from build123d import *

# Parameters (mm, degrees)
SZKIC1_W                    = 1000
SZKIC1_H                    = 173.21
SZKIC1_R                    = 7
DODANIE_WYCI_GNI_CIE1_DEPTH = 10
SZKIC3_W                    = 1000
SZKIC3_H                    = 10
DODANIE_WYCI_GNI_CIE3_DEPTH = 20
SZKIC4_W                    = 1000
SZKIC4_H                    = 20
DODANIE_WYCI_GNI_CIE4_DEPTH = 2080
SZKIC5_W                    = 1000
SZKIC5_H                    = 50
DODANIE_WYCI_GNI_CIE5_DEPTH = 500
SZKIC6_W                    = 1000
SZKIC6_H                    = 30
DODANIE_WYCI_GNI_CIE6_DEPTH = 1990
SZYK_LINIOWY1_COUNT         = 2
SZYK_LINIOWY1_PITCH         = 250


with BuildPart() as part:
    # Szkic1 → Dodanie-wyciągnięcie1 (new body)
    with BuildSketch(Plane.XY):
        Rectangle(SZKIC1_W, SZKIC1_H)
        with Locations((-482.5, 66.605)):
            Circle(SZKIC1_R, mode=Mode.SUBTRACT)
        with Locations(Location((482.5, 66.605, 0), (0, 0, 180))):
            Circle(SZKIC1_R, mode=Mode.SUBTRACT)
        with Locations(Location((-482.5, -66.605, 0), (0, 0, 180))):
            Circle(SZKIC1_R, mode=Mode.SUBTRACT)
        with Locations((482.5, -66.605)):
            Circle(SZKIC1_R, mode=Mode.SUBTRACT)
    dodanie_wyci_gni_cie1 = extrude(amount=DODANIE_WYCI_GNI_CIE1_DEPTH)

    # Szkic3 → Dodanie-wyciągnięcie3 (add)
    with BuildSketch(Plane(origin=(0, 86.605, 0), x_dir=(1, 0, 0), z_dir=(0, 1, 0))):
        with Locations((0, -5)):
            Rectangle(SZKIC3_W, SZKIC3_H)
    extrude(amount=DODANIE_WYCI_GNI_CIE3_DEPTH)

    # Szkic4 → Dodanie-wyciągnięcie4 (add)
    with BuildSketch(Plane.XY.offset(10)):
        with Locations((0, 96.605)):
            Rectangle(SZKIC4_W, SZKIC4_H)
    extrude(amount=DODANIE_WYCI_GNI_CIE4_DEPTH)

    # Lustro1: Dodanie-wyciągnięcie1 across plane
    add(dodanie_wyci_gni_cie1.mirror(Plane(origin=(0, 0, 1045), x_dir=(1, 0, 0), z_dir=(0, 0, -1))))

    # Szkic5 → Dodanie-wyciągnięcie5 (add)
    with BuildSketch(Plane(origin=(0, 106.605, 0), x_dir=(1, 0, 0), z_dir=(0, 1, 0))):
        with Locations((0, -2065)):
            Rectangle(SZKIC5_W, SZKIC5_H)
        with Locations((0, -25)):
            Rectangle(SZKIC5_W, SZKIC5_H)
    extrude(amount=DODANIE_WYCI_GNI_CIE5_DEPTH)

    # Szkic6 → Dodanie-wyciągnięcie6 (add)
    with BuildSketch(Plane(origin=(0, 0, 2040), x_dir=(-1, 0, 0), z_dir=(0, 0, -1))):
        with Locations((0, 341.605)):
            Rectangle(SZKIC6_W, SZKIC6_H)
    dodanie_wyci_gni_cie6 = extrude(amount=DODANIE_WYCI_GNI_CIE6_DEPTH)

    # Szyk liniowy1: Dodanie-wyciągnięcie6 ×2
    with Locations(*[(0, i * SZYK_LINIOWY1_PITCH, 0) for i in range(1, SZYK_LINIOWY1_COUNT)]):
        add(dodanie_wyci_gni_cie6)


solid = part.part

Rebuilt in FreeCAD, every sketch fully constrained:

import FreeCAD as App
import Part
import Sketcher
Q = App.Units.Quantity


def add_polygon(sketch, points):
    """Adds a closed chain of lines whose ends are joined by coincident constraints."""
    first, n = sketch.GeometryCount, len(points)
    for a, b in zip(points, points[1:] + points[:1]):
        sketch.addGeometry(Part.LineSegment(App.Vector(*a, 0), App.Vector(*b, 0)), False)
    for i in range(n):
        sketch.addConstraint(Sketcher.Constraint("Coincident", first + i, 2, first + (i + 1) % n, 1))

doc = App.newDocument("Part")
body = doc.addObject("PartDesign::Body", "Body")

sketch1 = doc.addObject("Sketcher::SketchObject", "Sketch")
body.addObject(sketch1)
sketch1.AttachmentSupport = (doc.XY_Plane, [""])
sketch1.MapMode = "FlatFace"
add_polygon(sketch1, [(-500, 87), (-500, -87), (500, -87), (500, 87)])
sketch1.addGeometry(Part.Circle(App.Vector(-482, -67, 0), App.Vector(0, 0, 1), 7), False)
sketch1.addGeometry(Part.Circle(App.Vector(482, -67, 0), App.Vector(0, 0, 1), 7), False)
sketch1.addGeometry(Part.Circle(App.Vector(-482, 67, 0), App.Vector(0, 0, 1), 7), False)
sketch1.addGeometry(Part.Circle(App.Vector(482, 67, 0), App.Vector(0, 0, 1), 7), False)
sketch1.addConstraint([
    Sketcher.Constraint("Vertical", 0),
    Sketcher.Constraint("Horizontal", 1),
    Sketcher.Constraint("Vertical", 2),
    Sketcher.Constraint("Horizontal", 3),
    Sketcher.Constraint("Equal", 4, 5),
    Sketcher.Constraint("Equal", 5, 6),
    Sketcher.Constraint("Equal", 6, 7),
    Sketcher.Constraint("Symmetric", 5, 3, 6, 3, -1, 1),
    Sketcher.Constraint("Symmetric", 4, 3, 7, 3, -1, 1),
    Sketcher.Constraint("Symmetric", 0, 2, 2, 2, -1, 1),
    Sketcher.Constraint("Symmetric", 4, 3, 5, 3, -2),
    Sketcher.Constraint("Diameter", 4, Q("14 mm")),
    Sketcher.Constraint("DistanceX", 1, 1, 1, 2, Q("1000 mm")),
    Sketcher.Constraint("DistanceX", 4, 3, 5, 3, Q("965 mm")),
    Sketcher.Constraint("DistanceY", 0, 2, 4, 3, Q("20 mm")),
    Sketcher.Constraint("DistanceY", 0, 2, 0, 1, Q("173.21 mm")),
])
pad1 = doc.addObject("PartDesign::Pad", "Pad")
body.addObject(pad1)
pad1.Profile = sketch1
pad1.Length = 10

sketch2 = doc.addObject("Sketcher::SketchObject", "Sketch001")
body.addObject(sketch2)
sketch2.AttachmentSupport = (doc.XZ_Plane, [""])
sketch2.MapMode = "FlatFace"
sketch2.AttachmentOffset = App.Placement(App.Vector(0, 0, -86.605), App.Rotation())
add_polygon(sketch2, [(-500, 0), (-500, 10), (500, 10), (500, 0)])
sketch2.addConstraint([
    Sketcher.Constraint("Vertical", 0),
    Sketcher.Constraint("Horizontal", 1),
    Sketcher.Constraint("Vertical", 2),
    Sketcher.Constraint("Horizontal", 3),
    Sketcher.Constraint("Symmetric", 2, 2, 3, 2, -1, 1),
    Sketcher.Constraint("DistanceX", 1, 1, 1, 2, Q("1000 mm")),
    Sketcher.Constraint("DistanceY", 0, 1, 0, 2, Q("10 mm")),
])
pad2 = doc.addObject("PartDesign::Pad", "Pad001")
body.addObject(pad2)
pad2.Profile = sketch2
pad2.Length = 20
pad2.Reversed = True

sketch3 = doc.addObject("Sketcher::SketchObject", "Sketch002")
body.addObject(sketch3)
sketch3.AttachmentSupport = (doc.XY_Plane, [""])
sketch3.MapMode = "FlatFace"
sketch3.AttachmentOffset = App.Placement(App.Vector(0, 0, 10), App.Rotation())
add_polygon(sketch3, [(-500, 107), (-500, 87), (500, 87), (500, 107)])
sketch3.addConstraint([
    Sketcher.Constraint("Vertical", 0),
    Sketcher.Constraint("Horizontal", 1),
    Sketcher.Constraint("Vertical", 2),
    Sketcher.Constraint("Horizontal", 3),
    Sketcher.Constraint("DistanceX", 1, 1, 1, 2, Q("1000 mm")),
    Sketcher.Constraint("DistanceY", 0, 2, 0, 1, Q("20 mm")),
    Sketcher.Constraint("DistanceX", 0, 2, -1, 1, Q("500 mm")),
    Sketcher.Constraint("DistanceY", -1, 1, 0, 2, Q("86.605 mm")),
])
pad3 = doc.addObject("PartDesign::Pad", "Pad002")
body.addObject(pad3)
pad3.Profile = sketch3
pad3.Length = 2080
doc.recompute()

datumplane = doc.addObject("PartDesign::Plane", "DatumPlane")
body.addObject(datumplane)
datumplane.AttachmentSupport = (doc.XY_Plane, [""])
datumplane.MapMode = "FlatFace"
datumplane.AttachmentOffset = App.Placement(App.Vector(0, 0, 1045), App.Rotation())
mirrored = doc.addObject("PartDesign::Mirrored", "Mirrored")
body.addObject(mirrored)
mirrored.Originals = [pad1]
mirrored.MirrorPlane = (datumplane, [""])
body.Tip = mirrored

sketch4 = doc.addObject("Sketcher::SketchObject", "Sketch003")
body.addObject(sketch4)
sketch4.AttachmentSupport = (doc.XZ_Plane, [""])
sketch4.MapMode = "FlatFace"
sketch4.AttachmentOffset = App.Placement(App.Vector(0, 0, -106.605), App.Rotation())
add_polygon(sketch4, [(-500, 2040), (-500, 2090), (500, 2090), (500, 2040)])
add_polygon(sketch4, [(-500, 0), (-500, 50), (500, 50), (500, 0)])
sketch4.addConstraint([
    Sketcher.Constraint("Vertical", 0),
    Sketcher.Constraint("Horizontal", 1),
    Sketcher.Constraint("Vertical", 2),
    Sketcher.Constraint("Horizontal", 3),
    Sketcher.Constraint("Vertical", 4),
    Sketcher.Constraint("Horizontal", 5),
    Sketcher.Constraint("Vertical", 6),
    Sketcher.Constraint("Horizontal", 7),
    Sketcher.Constraint("Symmetric", 6, 2, 7, 2, -1, 1),
    Sketcher.Constraint("Vertical", 3, 2, 4, 2),
    Sketcher.Constraint("Vertical", 2, 2, 5, 2),
    Sketcher.Constraint("Equal", 2, 4),
    Sketcher.Constraint("DistanceX", 1, 1, 1, 2, Q("1000 mm")),
    Sketcher.Constraint("DistanceY", 0, 1, 0, 2, Q("50 mm")),
    Sketcher.Constraint("DistanceY", -1, 1, 0, 2, Q("2090 mm")),
])
pad4 = doc.addObject("PartDesign::Pad", "Pad003")
body.addObject(pad4)
pad4.Profile = sketch4
pad4.Length = 500
pad4.Reversed = True

sketch5 = doc.addObject("Sketcher::SketchObject", "Sketch004")
body.addObject(sketch5)
sketch5.AttachmentSupport = (doc.XY_Plane, [""])
sketch5.MapMode = "FlatFace"
sketch5.AttachmentOffset = App.Placement(App.Vector(0, 0, 2040), App.Rotation())
add_polygon(sketch5, [(500, 357), (500, 327), (-500, 327), (-500, 357)])
sketch5.addConstraint([
    Sketcher.Constraint("Vertical", 0),
    Sketcher.Constraint("Horizontal", 1),
    Sketcher.Constraint("Vertical", 2),
    Sketcher.Constraint("Horizontal", 3),
    Sketcher.Constraint("DistanceX", 1, 2, 1, 1, Q("1000 mm")),
    Sketcher.Constraint("DistanceY", 0, 2, 0, 1, Q("30 mm")),
    Sketcher.Constraint("DistanceX", -1, 1, 0, 2, Q("500 mm")),
    Sketcher.Constraint("DistanceY", -1, 1, 0, 2, Q("326.605 mm")),
])
pad5 = doc.addObject("PartDesign::Pad", "Pad004")
body.addObject(pad5)
pad5.Profile = sketch5
pad5.Length = 1990
pad5.Reversed = True
doc.recompute()

linearpattern = doc.addObject("PartDesign::LinearPattern", "LinearPattern")
body.addObject(linearpattern)
linearpattern.Originals = [pad5]
linearpattern.Direction = (doc.Y_Axis, [""])
linearpattern.Mode = "offset"
linearpattern.Offset = 250
linearpattern.Occurrences = 2
body.Tip = linearpattern

doc.recompute()
